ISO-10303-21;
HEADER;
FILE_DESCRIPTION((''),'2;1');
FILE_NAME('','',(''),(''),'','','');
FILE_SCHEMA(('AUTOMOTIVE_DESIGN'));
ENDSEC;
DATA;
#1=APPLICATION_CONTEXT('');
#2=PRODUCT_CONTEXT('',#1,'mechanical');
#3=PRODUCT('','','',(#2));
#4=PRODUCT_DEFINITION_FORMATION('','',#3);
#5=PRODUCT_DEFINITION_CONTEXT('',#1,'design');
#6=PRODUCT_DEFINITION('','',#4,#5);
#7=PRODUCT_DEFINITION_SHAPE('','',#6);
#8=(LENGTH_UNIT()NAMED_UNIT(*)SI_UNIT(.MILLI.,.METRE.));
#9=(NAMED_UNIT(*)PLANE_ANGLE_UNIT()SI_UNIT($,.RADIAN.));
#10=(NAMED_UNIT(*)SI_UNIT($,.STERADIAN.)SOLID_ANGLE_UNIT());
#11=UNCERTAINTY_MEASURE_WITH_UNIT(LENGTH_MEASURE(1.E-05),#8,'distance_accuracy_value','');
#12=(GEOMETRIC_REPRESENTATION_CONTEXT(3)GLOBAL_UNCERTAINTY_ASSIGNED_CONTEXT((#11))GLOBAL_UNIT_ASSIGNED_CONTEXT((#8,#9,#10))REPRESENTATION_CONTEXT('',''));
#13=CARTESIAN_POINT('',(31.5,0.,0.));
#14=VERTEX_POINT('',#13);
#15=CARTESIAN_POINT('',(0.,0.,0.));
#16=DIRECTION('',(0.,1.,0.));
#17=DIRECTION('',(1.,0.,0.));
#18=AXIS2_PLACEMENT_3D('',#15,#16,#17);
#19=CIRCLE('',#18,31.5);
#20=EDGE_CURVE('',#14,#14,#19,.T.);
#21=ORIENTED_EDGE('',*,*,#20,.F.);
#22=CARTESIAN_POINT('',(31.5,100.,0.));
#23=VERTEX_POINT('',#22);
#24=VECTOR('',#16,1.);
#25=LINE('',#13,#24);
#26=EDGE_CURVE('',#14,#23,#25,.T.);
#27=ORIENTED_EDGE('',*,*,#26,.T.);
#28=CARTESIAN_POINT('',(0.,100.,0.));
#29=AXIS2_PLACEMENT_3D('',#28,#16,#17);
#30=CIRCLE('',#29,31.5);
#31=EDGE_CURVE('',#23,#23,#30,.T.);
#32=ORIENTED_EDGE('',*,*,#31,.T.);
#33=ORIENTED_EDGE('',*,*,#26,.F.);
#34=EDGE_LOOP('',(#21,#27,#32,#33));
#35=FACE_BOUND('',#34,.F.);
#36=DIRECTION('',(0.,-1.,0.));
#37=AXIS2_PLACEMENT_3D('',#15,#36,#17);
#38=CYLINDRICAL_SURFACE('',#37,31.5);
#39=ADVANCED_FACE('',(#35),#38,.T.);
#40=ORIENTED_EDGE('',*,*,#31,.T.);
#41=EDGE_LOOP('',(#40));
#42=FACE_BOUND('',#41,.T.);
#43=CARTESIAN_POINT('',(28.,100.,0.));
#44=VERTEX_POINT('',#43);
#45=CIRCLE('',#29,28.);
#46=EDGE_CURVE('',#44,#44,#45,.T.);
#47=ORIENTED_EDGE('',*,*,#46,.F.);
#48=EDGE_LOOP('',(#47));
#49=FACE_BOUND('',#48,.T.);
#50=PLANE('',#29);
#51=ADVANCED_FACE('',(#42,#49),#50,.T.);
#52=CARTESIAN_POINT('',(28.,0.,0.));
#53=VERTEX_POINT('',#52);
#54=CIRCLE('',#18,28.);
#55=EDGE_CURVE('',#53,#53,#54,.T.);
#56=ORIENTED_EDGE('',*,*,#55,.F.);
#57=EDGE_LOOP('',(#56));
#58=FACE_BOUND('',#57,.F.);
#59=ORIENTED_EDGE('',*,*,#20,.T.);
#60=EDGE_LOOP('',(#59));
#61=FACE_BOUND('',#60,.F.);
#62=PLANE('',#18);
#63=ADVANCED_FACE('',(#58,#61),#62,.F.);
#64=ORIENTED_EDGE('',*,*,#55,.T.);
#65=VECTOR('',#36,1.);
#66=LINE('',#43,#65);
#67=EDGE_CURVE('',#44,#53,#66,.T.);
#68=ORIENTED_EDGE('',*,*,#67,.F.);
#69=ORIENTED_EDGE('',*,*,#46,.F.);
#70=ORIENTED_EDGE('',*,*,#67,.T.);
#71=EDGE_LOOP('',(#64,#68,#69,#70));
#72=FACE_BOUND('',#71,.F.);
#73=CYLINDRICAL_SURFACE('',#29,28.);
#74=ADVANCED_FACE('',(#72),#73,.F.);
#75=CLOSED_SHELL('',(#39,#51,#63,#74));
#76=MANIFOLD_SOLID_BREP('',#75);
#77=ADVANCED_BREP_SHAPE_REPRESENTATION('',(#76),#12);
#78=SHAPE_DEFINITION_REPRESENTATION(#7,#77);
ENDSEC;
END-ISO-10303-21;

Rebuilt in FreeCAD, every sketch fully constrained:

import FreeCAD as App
import Part
import Sketcher
Q = App.Units.Quantity

doc = App.newDocument("Part")
params = doc.addObject("Spreadsheet::Sheet", "Params")
for row, (alias, value) in enumerate([
    ("sketch1_diameter", "63 mm"),
    ("pad1_length", "100 mm"),
    ("sketch2_diameter", "56 mm"),
], start=1):
    params.set(f"A{row}", alias)
    params.set(f"B{row}", "=" + value)
    params.setAlias(f"B{row}", alias)

body = doc.addObject("PartDesign::Body", "Body")

sketch1 = body.newObject("Sketcher::SketchObject", "Sketch")
sketch1.AttachmentSupport = (doc.getObject("XZ_Plane"), [""])
sketch1.MapMode = "FlatFace"
sketch1.addGeometry(Part.Circle(App.Vector(0, 0, 0), App.Vector(0, 0, 1), 32), False)
sketch1.addConstraint(Sketcher.Constraint("Coincident", 0, 3, -1, 1))
sketch1.addConstraint(Sketcher.Constraint("Diameter", 0, Q("63 mm")))
sketch1.setExpression("Constraints[1]", "Params.sketch1_diameter")
pad1 = body.newObject("PartDesign::Pad", "Pad")
pad1.Profile = sketch1
pad1.setExpression("Length", "Params.pad1_length")
pad1.Reversed = True

sketch2 = body.newObject("Sketcher::SketchObject", "Sketch001")
sketch2.AttachmentSupport = (doc.getObject("XZ_Plane"), [""])
sketch2.MapMode = "FlatFace"
sketch2.AttachmentOffset = App.Placement(App.Vector(0, 0, -100), App.Rotation())
sketch2.addGeometry(Part.Circle(App.Vector(0, 0, 0), App.Vector(0, 0, 1), 28), False)
sketch2.addConstraint(Sketcher.Constraint("Coincident", 0, 3, -1, 1))
sketch2.addConstraint(Sketcher.Constraint("Diameter", 0, Q("56 mm")))
sketch2.setExpression("Constraints[1]", "Params.sketch2_diameter")
pocket1 = body.newObject("PartDesign::Pocket", "Pocket")
pocket1.Profile = sketch2
pocket1.Type = "UpToFirst"
pocket1.Reversed = True

doc.recompute()
